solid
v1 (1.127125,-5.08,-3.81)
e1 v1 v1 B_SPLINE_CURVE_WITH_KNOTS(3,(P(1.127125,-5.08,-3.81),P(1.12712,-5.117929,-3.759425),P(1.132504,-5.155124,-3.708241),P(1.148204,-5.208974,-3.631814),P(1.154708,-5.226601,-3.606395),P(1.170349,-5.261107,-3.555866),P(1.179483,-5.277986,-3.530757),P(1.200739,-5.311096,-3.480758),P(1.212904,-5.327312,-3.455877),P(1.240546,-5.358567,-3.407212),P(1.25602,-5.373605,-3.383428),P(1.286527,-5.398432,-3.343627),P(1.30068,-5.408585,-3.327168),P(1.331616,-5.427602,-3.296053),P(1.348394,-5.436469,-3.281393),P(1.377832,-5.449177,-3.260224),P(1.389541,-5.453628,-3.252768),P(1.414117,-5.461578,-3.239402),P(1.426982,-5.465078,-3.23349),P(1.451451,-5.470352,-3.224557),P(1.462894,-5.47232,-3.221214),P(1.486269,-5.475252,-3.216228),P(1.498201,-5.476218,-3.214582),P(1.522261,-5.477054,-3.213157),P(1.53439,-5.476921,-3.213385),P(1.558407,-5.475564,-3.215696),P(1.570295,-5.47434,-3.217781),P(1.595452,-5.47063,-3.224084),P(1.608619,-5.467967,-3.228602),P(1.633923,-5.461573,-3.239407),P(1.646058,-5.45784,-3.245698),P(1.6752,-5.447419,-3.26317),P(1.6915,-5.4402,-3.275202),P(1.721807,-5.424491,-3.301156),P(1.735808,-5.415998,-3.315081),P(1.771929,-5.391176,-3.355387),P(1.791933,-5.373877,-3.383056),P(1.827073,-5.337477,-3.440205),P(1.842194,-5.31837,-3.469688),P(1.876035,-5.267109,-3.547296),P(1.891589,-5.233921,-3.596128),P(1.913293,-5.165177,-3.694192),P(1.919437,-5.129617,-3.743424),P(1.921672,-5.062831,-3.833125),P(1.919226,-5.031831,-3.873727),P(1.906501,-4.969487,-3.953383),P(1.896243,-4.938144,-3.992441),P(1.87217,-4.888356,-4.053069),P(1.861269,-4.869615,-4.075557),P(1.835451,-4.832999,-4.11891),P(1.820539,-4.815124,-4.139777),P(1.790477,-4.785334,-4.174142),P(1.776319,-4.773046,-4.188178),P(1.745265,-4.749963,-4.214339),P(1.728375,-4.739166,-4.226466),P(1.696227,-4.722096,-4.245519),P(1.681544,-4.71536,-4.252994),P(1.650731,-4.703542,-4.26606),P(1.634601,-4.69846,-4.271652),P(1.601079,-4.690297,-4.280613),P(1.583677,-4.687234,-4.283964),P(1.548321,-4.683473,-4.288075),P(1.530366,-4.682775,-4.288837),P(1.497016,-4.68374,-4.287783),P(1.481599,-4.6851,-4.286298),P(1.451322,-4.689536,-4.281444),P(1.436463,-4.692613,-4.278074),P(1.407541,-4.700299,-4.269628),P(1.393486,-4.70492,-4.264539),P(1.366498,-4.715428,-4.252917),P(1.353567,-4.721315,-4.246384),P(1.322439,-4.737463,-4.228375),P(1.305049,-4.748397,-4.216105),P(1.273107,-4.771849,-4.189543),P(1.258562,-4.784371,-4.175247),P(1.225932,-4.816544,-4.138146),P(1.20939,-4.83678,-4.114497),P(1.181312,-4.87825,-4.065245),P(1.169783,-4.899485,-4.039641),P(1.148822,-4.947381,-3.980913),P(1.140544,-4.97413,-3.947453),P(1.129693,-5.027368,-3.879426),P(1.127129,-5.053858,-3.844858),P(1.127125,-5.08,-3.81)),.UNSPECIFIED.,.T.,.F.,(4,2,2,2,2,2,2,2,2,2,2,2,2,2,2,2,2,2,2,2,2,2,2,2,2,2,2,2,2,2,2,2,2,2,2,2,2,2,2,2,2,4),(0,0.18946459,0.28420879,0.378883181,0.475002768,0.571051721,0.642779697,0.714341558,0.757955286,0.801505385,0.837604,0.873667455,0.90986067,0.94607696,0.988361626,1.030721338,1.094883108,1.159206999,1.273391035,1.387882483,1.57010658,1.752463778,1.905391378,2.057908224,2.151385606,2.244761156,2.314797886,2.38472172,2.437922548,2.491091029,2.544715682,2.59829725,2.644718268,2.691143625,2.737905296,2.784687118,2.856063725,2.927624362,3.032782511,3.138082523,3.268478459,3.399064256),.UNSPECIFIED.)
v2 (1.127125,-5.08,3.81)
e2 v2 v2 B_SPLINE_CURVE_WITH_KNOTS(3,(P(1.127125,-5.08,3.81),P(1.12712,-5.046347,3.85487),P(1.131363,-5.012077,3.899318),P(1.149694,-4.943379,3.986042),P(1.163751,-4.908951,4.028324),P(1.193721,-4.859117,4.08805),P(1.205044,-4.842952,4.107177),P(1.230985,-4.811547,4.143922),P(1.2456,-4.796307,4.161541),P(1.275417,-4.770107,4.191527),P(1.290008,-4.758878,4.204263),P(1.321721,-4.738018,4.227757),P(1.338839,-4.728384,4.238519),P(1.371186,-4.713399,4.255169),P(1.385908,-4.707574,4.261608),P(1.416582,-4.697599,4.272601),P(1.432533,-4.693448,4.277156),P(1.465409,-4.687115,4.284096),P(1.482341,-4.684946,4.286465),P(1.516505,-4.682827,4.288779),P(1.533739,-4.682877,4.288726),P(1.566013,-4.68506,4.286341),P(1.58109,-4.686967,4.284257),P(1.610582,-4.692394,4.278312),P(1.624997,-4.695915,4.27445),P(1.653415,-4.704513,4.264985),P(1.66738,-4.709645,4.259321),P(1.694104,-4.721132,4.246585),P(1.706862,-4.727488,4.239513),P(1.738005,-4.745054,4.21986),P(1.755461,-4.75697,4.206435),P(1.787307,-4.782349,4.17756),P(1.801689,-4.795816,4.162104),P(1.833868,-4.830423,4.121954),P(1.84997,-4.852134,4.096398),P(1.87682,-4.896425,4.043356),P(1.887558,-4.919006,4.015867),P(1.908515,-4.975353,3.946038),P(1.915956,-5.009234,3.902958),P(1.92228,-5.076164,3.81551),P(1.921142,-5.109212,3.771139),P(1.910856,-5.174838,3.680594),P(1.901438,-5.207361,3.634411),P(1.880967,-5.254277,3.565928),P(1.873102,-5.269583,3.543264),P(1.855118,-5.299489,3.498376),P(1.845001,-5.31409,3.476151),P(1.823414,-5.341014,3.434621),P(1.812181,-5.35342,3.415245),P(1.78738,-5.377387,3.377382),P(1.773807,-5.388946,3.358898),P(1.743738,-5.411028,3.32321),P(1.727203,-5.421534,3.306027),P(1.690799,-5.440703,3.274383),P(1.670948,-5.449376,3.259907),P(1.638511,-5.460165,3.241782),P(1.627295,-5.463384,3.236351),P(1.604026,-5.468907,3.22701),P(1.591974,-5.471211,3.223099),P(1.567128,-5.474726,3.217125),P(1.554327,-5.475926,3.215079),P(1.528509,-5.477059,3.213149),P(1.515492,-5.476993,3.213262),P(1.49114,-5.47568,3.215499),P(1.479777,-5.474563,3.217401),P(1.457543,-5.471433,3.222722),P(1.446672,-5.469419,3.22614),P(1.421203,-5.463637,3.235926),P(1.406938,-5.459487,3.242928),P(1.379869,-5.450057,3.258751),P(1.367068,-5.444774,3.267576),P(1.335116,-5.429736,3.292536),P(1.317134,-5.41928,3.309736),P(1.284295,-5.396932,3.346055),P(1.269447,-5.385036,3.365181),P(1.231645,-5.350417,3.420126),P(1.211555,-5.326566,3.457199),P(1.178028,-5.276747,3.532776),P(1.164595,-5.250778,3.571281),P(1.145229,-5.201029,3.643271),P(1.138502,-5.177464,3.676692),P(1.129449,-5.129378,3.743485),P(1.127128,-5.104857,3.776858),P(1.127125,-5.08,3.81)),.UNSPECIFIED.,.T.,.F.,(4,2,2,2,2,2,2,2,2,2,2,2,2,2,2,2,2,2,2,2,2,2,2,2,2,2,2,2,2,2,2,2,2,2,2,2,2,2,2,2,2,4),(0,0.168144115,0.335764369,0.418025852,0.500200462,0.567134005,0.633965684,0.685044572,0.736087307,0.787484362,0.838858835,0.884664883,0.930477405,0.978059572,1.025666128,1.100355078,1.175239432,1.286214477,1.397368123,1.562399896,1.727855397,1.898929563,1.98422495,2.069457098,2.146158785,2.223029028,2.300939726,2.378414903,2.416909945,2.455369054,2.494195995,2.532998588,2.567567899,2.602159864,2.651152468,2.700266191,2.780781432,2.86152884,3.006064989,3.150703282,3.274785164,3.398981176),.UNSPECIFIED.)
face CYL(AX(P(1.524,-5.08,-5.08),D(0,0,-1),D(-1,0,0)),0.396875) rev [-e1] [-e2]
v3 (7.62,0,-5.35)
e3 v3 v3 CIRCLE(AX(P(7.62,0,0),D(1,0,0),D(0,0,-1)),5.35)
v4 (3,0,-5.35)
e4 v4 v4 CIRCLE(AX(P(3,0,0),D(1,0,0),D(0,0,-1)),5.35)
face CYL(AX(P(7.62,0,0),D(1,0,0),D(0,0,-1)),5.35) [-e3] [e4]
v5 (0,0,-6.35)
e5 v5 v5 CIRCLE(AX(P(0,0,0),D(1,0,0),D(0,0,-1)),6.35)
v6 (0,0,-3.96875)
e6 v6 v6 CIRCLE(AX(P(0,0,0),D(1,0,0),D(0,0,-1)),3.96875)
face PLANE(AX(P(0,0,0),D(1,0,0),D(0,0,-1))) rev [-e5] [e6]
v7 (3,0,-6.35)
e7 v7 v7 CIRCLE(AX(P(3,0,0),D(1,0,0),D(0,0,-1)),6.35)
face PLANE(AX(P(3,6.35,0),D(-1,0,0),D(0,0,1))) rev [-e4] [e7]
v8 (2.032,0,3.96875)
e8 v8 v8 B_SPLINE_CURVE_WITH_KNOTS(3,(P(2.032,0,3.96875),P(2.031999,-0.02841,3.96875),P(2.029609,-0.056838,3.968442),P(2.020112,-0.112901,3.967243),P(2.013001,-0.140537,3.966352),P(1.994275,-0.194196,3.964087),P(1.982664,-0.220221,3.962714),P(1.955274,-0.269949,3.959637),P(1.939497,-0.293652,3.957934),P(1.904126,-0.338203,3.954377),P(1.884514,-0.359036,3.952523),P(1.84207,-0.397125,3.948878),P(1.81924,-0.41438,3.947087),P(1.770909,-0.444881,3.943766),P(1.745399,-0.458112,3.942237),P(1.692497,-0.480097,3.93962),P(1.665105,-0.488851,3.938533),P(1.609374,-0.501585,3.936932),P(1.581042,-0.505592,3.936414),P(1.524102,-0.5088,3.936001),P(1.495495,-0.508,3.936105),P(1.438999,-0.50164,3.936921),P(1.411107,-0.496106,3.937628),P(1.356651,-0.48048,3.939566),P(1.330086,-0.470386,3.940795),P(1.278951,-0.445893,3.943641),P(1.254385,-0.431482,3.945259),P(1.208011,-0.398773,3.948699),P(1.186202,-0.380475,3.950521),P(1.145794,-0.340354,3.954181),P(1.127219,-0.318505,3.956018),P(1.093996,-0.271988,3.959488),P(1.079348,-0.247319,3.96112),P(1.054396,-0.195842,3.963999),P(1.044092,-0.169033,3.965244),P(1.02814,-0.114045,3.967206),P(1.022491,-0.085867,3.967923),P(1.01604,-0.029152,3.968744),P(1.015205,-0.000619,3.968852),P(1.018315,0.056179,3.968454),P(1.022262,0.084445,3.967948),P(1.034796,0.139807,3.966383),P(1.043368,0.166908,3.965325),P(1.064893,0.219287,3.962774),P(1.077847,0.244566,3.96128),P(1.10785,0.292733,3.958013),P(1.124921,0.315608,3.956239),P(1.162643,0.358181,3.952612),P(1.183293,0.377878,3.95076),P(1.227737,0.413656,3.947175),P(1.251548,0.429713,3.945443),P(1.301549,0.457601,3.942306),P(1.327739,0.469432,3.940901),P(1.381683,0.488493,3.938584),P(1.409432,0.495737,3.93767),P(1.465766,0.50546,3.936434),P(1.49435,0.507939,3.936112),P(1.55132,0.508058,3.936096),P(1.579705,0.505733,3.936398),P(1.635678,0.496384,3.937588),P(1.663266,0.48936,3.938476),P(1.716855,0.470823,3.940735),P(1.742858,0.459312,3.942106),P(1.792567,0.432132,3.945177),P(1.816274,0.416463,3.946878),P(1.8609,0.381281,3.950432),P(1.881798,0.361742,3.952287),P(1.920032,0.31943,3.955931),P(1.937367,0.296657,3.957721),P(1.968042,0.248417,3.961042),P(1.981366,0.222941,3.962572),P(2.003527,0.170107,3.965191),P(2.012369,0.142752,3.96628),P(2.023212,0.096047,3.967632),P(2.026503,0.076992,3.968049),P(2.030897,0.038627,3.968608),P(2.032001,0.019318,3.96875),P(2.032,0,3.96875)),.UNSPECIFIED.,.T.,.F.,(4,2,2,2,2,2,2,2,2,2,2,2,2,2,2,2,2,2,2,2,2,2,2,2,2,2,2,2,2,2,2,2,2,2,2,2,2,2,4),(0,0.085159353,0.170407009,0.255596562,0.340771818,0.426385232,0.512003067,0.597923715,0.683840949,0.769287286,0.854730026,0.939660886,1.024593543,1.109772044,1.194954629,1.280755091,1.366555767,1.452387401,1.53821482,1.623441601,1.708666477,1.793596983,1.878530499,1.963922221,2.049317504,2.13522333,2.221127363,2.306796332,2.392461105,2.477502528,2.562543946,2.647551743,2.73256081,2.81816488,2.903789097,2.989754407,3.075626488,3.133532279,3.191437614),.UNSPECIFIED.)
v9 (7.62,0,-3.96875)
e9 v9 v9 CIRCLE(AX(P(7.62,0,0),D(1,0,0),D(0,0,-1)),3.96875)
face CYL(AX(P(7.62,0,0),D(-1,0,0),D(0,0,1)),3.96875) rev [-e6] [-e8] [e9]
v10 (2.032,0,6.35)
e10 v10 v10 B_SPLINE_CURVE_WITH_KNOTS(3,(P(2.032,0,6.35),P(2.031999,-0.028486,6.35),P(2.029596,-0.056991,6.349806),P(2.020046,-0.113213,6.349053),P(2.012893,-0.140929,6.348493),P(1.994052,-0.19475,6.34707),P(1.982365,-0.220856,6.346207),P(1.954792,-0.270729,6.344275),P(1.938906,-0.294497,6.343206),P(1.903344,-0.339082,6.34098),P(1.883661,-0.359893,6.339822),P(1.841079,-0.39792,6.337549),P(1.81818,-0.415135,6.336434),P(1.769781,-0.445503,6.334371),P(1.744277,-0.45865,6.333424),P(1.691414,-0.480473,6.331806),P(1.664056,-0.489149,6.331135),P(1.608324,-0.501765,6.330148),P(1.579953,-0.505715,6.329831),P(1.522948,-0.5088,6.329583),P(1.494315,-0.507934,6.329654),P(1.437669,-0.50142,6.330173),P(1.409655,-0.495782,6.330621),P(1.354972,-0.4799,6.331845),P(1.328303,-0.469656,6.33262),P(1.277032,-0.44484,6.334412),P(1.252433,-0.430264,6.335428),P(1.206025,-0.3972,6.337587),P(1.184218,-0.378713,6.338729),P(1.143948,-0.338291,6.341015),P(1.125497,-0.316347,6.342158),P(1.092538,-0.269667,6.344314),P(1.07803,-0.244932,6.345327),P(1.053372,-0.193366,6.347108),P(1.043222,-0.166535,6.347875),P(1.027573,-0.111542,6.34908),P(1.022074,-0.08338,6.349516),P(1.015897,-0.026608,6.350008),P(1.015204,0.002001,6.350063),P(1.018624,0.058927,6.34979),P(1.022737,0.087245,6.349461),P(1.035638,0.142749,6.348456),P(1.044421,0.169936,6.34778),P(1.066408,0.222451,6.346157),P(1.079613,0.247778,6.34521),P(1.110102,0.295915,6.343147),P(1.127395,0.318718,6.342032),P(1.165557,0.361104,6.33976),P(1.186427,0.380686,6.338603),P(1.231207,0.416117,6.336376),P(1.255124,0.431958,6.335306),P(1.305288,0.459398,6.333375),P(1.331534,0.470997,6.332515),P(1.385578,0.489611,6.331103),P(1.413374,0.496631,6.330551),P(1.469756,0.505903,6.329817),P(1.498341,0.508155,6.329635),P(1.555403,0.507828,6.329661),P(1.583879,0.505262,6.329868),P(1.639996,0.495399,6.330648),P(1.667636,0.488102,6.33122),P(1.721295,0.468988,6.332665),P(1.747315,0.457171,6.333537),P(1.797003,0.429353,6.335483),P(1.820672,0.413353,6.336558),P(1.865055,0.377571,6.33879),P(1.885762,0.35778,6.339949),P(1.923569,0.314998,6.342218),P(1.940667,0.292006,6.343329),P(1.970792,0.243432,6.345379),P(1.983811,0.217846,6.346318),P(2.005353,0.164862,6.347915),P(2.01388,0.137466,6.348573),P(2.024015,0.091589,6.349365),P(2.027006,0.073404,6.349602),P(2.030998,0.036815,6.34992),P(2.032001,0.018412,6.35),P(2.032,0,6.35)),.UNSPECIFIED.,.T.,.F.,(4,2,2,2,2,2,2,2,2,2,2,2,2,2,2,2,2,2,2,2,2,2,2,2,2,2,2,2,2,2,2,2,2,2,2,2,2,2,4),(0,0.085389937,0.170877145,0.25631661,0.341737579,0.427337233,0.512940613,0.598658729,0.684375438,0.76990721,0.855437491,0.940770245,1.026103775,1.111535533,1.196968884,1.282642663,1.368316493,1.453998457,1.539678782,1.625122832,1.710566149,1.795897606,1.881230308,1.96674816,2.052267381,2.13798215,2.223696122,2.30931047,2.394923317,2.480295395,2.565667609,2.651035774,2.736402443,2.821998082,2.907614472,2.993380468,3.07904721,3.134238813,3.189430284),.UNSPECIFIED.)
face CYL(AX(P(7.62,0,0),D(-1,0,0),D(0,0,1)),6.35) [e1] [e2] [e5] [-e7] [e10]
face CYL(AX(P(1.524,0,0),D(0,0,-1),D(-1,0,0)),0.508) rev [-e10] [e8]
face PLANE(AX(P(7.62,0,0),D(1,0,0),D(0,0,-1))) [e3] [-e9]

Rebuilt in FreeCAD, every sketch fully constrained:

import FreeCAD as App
import Part
import Sketcher
from FreeCAD import Vector
Q = App.Units.Quantity

doc = App.newDocument("Part")
body = doc.addObject("PartDesign::Body", "Body")

sketch1 = doc.addObject("Sketcher::SketchObject", "Sketch")
body.addObject(sketch1)
sketch1.AttachmentSupport = (doc.YZ_Plane, [""])
sketch1.MapMode = "FlatFace"
sketch1.addGeometry([
    Part.Circle(Vector(0, 0, 0), Vector(0, 0, 1), 6.3),
    Part.Circle(Vector(0, 0, 0), Vector(0, 0, 1), 4),
], False)
sketch1.addConstraint([
    Sketcher.Constraint("Coincident", 0, 3, -1, 1),
    Sketcher.Constraint("Coincident", 1, 3, -1, 1),
    Sketcher.Constraint("Diameter", 0, Q("0.5 in")),
    Sketcher.Constraint("Diameter", 1, Q("0.3125 in")),
])
pad1 = doc.addObject("PartDesign::Pad", "Pad")
body.addObject(pad1)
pad1.Profile = sketch1
pad1.Length = Q("0.3 in")

sketch2 = doc.addObject("Sketcher::SketchObject", "Sketch001")
body.addObject(sketch2)
sketch2.AttachmentSupport = (doc.XY_Plane, [""])
sketch2.MapMode = "FlatFace"
sketch2.addGeometry([
    Part.LineSegment(Vector(3, 6.3, 0), Vector(3, 5.3, 0)),
    Part.LineSegment(Vector(3, 5.3, 0), Vector(7.6, 5.3, 0)),
    Part.LineSegment(Vector(7.6, 5.3, 0), Vector(7.6, 6.3, 0)),
    Part.LineSegment(Vector(7.6, 6.3, 0), Vector(3, 6.3, 0)),
], False)
sketch2.addConstraint([
    Sketcher.Constraint("Coincident", 0, 2, 1, 1),
    Sketcher.Constraint("Coincident", 1, 2, 2, 1),
    Sketcher.Constraint("Coincident", 2, 2, 3, 1),
    Sketcher.Constraint("Coincident", 3, 2, 0, 1),
    Sketcher.Constraint("Vertical", 0),
    Sketcher.Constraint("Horizontal", 1),
    Sketcher.Constraint("Vertical", 2),
    Sketcher.Constraint("Horizontal", 3),
    Sketcher.Constraint("DistanceX", -1, 1, 1, 2, Q("0.3 in")),
    Sketcher.Constraint("DistanceY", -1, 1, 2, 2, Q("0.25 in")),
    Sketcher.Constraint("DistanceX", 1, 1, 1, 2, Q("4.62 mm")),
    Sketcher.Constraint("DistanceY", 0, 2, 0, 1, Q("1 mm")),
])
groove = doc.addObject("PartDesign::Groove", "Groove")
body.addObject(groove)
groove.Profile = sketch2
groove.ReferenceAxis = (sketch2, ["H_Axis"])
groove.Angle = 360

sketch3 = doc.addObject("Sketcher::SketchObject", "Sketch002")
body.addObject(sketch3)
sketch3.AttachmentSupport = (doc.YZ_Plane, [""])
sketch3.MapMode = "FlatFace"
sketch3.AttachmentOffset = App.Placement(Vector(0, 0, 0.06 * 25.4), App.Rotation())
sketch3.addGeometry([
    Part.LineSegment(Vector(0, 25.7, 0), Vector(0, 0, 0)),
    Part.LineSegment(Vector(0, 0, 0), Vector(0.5, 0, 0)),
    Part.LineSegment(Vector(0.5, 0, 0), Vector(0.5, 25.4, 0)),
    Part.LineSegment(Vector(0.5, 25.4, 0), Vector(0, 25.7, 0)),
], False)
sketch3.addConstraint([
    Sketcher.Constraint("Coincident", 0, 2, 1, 1),
    Sketcher.Constraint("Coincident", 1, 2, 2, 1),
    Sketcher.Constraint("Coincident", 2, 2, 3, 1),
    Sketcher.Constraint("Coincident", 3, 2, 0, 1),
    Sketcher.Constraint("Vertical", 0),
    Sketcher.Constraint("Horizontal", 1),
    Sketcher.Constraint("Vertical", 2),
    Sketcher.Constraint("Coincident", 0, 2, -1, 1),
    Sketcher.Constraint("DistanceY", 2, 1, 2, 2, Q("1 in")),
    Sketcher.Constraint("Angle", 3, Q("149 deg")),
    Sketcher.Constraint("DistanceX", 1, 1, 1, 2, Q("0.02 in")),
])
groove2 = doc.addObject("PartDesign::Groove", "Groove001")
body.addObject(groove2)
groove2.Profile = sketch3
groove2.ReferenceAxis = (sketch3, ["V_Axis"])
groove2.Angle = 360

sketch4 = doc.addObject("Sketcher::SketchObject", "Sketch003")
body.addObject(sketch4)
sketch4.AttachmentSupport = (doc.XY_Plane, [""])
sketch4.MapMode = "FlatFace"
sketch4.AttachmentOffset = App.Placement(Vector(0, 0, -0.2 * 25.4), App.Rotation())
sketch4.addGeometry(Part.Circle(Vector(1.52, -5.08, 0), Vector(0, 0, 1), 0.4), False)
sketch4.addConstraint([
    Sketcher.Constraint("Diameter", 0, Q("0.03125 in")),
    Sketcher.Constraint("DistanceY", 0, 3, -1, 1, Q("0.2 in")),
    Sketcher.Constraint("DistanceX", -1, 1, 0, 3, Q("0.06 in")),
])
doc.recompute()
hole = doc.addObject("PartDesign::Hole", "Hole")
body.addObject(hole)
hole.Profile = sketch4
hole.ThreadType = "None"
hole.Diameter = Q("0.03125 in")
hole.DepthType = "ThroughAll"
hole.Reversed = True

doc.recompute()
